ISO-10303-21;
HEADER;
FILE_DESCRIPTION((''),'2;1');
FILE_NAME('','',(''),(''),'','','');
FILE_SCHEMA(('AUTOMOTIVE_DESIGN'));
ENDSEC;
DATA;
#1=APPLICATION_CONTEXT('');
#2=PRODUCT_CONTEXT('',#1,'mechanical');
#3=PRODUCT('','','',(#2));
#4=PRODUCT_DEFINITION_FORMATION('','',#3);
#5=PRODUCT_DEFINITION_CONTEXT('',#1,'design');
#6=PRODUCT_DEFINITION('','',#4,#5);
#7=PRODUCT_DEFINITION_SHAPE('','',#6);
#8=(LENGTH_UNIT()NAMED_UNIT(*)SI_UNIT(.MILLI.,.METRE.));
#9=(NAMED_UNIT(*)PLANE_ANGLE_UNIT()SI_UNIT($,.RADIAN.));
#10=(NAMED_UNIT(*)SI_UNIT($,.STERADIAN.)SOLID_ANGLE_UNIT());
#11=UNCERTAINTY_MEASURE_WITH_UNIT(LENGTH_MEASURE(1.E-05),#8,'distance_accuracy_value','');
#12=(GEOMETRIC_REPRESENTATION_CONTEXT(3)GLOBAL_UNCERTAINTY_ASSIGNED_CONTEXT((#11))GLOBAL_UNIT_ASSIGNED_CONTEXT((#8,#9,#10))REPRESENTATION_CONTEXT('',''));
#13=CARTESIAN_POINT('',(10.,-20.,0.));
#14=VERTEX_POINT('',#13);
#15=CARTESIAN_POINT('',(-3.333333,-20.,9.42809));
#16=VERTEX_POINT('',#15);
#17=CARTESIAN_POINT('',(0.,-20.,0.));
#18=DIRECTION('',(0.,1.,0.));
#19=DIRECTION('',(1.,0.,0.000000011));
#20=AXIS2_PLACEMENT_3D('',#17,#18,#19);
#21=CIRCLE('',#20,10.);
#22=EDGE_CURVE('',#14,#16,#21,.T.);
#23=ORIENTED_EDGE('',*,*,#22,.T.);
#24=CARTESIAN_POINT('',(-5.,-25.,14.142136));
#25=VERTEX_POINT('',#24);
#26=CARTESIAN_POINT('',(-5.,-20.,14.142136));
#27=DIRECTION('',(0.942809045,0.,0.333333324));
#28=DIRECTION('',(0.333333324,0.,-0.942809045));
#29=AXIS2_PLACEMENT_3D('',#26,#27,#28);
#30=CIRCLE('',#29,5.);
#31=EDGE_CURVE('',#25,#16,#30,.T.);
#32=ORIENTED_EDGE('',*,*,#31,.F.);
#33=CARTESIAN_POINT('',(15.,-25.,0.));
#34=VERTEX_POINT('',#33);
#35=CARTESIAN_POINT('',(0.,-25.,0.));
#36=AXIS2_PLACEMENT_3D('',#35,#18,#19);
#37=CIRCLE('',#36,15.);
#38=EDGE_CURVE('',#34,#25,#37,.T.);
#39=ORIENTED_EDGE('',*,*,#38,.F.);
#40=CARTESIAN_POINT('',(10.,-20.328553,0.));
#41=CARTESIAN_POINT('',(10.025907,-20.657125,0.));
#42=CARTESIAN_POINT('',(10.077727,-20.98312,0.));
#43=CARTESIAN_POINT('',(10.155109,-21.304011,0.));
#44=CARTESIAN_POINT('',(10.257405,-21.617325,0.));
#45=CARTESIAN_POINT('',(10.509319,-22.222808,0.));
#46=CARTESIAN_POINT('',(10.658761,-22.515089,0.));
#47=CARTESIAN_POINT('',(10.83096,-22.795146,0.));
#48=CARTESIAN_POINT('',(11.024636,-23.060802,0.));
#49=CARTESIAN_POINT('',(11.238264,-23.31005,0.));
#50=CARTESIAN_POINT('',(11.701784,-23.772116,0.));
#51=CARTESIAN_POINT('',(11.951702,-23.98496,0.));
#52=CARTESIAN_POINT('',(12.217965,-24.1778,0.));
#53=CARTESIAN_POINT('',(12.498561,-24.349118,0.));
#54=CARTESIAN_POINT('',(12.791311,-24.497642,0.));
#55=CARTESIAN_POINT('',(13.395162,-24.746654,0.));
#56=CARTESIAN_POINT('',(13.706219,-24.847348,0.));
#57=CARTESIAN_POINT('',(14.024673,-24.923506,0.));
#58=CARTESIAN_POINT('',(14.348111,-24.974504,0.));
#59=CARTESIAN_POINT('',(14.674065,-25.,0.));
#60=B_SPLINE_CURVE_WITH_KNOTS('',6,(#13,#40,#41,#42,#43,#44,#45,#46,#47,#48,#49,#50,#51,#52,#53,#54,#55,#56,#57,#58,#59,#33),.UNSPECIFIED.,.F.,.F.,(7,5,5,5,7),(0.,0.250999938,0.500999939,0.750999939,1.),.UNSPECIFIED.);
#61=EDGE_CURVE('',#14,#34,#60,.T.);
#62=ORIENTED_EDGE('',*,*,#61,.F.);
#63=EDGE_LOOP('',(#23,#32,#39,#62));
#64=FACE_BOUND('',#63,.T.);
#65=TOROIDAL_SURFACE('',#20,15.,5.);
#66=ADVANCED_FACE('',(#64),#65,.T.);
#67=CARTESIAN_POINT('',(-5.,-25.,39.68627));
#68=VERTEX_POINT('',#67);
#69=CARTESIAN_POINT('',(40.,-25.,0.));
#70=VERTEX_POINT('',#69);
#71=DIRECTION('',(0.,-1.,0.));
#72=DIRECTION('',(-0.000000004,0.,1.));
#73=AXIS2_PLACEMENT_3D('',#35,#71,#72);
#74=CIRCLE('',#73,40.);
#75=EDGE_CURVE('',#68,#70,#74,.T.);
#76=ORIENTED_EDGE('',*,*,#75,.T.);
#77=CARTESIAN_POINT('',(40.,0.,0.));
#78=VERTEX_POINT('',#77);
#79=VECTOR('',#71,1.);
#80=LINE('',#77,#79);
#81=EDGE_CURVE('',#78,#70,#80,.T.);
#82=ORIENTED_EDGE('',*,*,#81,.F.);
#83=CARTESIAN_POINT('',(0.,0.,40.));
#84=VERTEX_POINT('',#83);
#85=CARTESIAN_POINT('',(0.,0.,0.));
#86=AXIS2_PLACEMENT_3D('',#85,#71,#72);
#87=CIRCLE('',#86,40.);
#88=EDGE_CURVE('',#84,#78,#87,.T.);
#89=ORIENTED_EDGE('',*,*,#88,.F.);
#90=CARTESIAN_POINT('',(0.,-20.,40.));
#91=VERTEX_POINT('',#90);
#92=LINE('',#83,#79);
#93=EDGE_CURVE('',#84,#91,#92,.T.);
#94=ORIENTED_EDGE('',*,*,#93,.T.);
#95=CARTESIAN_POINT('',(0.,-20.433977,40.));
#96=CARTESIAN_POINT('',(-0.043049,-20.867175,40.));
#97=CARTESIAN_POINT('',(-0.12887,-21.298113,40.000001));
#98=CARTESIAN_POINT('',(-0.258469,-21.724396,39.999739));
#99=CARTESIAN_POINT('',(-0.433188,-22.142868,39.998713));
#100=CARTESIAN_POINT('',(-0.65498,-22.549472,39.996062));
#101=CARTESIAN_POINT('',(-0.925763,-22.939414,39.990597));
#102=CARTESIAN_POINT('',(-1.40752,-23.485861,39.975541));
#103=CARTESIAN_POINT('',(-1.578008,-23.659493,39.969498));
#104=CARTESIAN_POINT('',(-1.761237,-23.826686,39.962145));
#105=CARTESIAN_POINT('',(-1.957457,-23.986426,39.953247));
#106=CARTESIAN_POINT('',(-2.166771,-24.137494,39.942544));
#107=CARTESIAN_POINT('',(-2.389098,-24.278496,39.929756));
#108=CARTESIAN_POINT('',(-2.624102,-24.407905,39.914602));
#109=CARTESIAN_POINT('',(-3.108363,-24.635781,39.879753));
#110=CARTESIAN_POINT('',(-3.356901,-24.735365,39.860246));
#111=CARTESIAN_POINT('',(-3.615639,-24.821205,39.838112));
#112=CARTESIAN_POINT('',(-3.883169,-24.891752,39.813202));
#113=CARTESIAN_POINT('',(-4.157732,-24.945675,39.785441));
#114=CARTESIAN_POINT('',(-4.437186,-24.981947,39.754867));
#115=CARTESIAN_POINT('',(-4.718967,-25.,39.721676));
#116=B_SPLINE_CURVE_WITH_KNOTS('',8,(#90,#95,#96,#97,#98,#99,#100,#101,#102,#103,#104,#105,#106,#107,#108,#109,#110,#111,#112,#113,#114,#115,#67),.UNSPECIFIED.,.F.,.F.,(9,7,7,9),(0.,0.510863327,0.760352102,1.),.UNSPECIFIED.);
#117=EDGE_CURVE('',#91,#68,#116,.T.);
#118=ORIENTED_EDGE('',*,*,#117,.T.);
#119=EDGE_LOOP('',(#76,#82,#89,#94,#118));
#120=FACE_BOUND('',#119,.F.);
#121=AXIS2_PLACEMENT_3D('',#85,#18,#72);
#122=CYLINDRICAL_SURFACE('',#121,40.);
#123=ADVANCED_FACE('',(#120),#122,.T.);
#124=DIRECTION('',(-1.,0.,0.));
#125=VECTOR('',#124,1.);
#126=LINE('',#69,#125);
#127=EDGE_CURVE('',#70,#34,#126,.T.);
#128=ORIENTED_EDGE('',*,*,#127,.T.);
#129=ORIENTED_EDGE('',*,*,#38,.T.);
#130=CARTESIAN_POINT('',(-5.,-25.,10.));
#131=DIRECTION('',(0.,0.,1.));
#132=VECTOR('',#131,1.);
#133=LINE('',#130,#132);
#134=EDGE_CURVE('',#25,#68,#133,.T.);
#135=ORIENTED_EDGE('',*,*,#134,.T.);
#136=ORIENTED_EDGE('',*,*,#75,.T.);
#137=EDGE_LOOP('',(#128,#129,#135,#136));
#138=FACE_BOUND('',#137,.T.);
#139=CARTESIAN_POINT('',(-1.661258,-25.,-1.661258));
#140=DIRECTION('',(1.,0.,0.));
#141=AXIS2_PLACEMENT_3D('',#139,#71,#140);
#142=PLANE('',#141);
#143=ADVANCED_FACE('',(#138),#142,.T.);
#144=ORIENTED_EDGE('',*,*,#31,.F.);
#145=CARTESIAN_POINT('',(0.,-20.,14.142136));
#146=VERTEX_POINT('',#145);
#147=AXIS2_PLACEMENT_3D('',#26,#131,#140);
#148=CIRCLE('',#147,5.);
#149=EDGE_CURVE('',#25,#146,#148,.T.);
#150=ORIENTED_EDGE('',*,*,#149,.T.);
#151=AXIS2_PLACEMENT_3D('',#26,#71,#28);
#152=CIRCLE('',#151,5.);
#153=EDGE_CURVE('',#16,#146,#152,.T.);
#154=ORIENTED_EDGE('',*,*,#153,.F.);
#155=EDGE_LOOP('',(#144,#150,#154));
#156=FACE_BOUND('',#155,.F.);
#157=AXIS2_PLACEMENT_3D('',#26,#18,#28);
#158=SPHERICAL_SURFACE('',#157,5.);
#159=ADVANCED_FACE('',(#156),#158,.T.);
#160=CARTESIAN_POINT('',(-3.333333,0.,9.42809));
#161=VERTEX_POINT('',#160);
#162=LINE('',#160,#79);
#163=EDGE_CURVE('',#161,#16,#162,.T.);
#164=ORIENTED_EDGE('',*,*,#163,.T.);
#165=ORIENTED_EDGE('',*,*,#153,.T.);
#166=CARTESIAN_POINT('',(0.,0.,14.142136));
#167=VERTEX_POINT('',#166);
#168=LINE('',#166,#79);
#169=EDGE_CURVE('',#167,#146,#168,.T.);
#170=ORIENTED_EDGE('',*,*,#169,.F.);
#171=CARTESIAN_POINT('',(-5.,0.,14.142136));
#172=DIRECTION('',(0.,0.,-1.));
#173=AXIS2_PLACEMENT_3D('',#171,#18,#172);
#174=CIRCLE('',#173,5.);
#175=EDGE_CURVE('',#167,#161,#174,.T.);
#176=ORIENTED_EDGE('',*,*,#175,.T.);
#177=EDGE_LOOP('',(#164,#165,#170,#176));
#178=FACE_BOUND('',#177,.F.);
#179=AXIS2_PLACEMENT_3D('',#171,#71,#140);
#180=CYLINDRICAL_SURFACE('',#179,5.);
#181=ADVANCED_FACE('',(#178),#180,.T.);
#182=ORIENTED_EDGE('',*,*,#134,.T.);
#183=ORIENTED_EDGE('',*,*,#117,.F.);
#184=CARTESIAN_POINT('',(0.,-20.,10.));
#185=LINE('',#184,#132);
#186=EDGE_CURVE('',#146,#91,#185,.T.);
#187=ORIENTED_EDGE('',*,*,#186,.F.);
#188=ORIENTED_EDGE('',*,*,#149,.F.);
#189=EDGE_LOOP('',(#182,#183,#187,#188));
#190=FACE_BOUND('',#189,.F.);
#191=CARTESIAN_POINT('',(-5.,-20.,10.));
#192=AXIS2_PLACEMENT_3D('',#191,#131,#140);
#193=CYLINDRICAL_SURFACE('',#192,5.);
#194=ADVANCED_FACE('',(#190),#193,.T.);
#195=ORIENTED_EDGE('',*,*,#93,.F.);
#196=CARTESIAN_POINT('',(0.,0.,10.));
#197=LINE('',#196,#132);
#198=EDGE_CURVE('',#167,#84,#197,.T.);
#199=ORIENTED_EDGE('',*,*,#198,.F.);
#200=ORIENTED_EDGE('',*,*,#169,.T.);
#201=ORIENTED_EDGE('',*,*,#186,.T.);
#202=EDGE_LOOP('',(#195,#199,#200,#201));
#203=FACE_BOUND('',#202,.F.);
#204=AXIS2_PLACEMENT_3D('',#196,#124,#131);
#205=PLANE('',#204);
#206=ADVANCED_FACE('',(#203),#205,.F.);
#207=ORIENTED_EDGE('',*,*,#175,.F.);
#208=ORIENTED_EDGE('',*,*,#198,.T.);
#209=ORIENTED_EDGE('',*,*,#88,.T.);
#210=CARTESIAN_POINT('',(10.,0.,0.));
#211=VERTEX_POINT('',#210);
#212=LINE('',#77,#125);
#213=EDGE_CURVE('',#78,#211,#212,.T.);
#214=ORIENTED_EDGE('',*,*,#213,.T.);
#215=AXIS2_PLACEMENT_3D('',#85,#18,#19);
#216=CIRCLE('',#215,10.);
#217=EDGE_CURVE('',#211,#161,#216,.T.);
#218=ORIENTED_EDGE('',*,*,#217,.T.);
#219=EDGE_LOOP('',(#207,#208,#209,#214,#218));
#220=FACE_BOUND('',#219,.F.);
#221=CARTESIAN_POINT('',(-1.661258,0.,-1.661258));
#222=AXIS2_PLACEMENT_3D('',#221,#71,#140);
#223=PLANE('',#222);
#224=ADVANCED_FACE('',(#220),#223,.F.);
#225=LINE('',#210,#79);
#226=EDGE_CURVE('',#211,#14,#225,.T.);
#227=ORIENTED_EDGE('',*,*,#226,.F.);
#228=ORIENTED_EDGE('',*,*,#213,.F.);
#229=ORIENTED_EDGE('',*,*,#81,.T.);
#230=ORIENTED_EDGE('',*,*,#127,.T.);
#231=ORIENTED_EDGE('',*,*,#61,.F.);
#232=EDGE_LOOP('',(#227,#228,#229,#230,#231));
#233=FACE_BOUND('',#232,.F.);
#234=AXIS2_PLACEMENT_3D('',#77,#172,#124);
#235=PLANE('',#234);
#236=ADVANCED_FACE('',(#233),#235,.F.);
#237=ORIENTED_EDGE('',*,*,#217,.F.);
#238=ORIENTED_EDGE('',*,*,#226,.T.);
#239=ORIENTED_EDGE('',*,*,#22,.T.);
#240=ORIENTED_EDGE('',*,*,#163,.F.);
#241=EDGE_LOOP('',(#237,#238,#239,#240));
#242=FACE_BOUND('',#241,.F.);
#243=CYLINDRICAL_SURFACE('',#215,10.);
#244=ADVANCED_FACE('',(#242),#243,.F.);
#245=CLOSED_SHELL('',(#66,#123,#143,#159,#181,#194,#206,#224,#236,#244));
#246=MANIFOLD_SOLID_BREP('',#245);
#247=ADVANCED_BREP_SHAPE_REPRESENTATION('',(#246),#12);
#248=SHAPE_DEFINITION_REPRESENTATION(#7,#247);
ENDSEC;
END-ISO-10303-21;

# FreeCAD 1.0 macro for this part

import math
import FreeCAD as App
import Part
import Sketcher


def edges_at(feature, points):
    """Names of the edges that pass closest to the given points."""
    edges = feature.Shape.Edges
    near = lambda p: min(range(len(edges)), key=lambda i: edges[i].distToShape(Part.Vertex(*p))[0])
    return sorted({f"Edge{near(p) + 1}" for p in points})

doc = App.newDocument("Part")
body = doc.addObject("PartDesign::Body", "Body")

sketch1 = body.newObject("Sketcher::SketchObject", "Sketch")
sketch1.AttachmentSupport = (doc.getObject("XZ_Plane"), [""])
sketch1.MapMode = "FlatFace"
sketch1.addGeometry([
    Part.LineSegment(App.Vector(0, 10, 0), App.Vector(0, 40, 0)),
    Part.ArcOfCircle(Part.Circle(App.Vector(0, 0, 0), App.Vector(0, 0, 1), 40), math.radians(90), math.radians(360)),
    Part.LineSegment(App.Vector(40, 0, 0), App.Vector(10, 0, 0)),
    Part.ArcOfCircle(Part.Circle(App.Vector(0, 0, 0), App.Vector(0, 0, 1), 10), math.radians(90), math.radians(360)),
], False)
sketch1.addConstraint([
    Sketcher.Constraint("Coincident", 0, 2, 1, 1),
    Sketcher.Constraint("Coincident", 1, 2, 2, 1),
    Sketcher.Constraint("Coincident", 2, 2, 3, 2),
    Sketcher.Constraint("Coincident", 3, 1, 0, 1),
    Sketcher.Constraint("Vertical", 0),
    Sketcher.Constraint("Horizontal", 2),
    Sketcher.Constraint("Coincident", 1, 3, -1, 1),
    Sketcher.Constraint("Coincident", 3, 3, -1, 1),
    Sketcher.Constraint("PointOnObject", 0, 2, -2),
    Sketcher.Constraint("PointOnObject", 1, 2, -1),
    Sketcher.Constraint("Radius", 1, 40.0),
    Sketcher.Constraint("Radius", 3, 10.0),
])
pad1 = body.newObject("PartDesign::Pad", "Pad")
pad1.Profile = sketch1
pad1.Length = 25
doc.recompute()

fillet = body.newObject("PartDesign::Fillet", "Fillet")
fillet.Base = (pad1, edges_at(pad1, [(-7.071, -25, -7.071), (0, -25, 25), (0, -12.5, 10)]))
fillet.Radius = 5

doc.recompute()
